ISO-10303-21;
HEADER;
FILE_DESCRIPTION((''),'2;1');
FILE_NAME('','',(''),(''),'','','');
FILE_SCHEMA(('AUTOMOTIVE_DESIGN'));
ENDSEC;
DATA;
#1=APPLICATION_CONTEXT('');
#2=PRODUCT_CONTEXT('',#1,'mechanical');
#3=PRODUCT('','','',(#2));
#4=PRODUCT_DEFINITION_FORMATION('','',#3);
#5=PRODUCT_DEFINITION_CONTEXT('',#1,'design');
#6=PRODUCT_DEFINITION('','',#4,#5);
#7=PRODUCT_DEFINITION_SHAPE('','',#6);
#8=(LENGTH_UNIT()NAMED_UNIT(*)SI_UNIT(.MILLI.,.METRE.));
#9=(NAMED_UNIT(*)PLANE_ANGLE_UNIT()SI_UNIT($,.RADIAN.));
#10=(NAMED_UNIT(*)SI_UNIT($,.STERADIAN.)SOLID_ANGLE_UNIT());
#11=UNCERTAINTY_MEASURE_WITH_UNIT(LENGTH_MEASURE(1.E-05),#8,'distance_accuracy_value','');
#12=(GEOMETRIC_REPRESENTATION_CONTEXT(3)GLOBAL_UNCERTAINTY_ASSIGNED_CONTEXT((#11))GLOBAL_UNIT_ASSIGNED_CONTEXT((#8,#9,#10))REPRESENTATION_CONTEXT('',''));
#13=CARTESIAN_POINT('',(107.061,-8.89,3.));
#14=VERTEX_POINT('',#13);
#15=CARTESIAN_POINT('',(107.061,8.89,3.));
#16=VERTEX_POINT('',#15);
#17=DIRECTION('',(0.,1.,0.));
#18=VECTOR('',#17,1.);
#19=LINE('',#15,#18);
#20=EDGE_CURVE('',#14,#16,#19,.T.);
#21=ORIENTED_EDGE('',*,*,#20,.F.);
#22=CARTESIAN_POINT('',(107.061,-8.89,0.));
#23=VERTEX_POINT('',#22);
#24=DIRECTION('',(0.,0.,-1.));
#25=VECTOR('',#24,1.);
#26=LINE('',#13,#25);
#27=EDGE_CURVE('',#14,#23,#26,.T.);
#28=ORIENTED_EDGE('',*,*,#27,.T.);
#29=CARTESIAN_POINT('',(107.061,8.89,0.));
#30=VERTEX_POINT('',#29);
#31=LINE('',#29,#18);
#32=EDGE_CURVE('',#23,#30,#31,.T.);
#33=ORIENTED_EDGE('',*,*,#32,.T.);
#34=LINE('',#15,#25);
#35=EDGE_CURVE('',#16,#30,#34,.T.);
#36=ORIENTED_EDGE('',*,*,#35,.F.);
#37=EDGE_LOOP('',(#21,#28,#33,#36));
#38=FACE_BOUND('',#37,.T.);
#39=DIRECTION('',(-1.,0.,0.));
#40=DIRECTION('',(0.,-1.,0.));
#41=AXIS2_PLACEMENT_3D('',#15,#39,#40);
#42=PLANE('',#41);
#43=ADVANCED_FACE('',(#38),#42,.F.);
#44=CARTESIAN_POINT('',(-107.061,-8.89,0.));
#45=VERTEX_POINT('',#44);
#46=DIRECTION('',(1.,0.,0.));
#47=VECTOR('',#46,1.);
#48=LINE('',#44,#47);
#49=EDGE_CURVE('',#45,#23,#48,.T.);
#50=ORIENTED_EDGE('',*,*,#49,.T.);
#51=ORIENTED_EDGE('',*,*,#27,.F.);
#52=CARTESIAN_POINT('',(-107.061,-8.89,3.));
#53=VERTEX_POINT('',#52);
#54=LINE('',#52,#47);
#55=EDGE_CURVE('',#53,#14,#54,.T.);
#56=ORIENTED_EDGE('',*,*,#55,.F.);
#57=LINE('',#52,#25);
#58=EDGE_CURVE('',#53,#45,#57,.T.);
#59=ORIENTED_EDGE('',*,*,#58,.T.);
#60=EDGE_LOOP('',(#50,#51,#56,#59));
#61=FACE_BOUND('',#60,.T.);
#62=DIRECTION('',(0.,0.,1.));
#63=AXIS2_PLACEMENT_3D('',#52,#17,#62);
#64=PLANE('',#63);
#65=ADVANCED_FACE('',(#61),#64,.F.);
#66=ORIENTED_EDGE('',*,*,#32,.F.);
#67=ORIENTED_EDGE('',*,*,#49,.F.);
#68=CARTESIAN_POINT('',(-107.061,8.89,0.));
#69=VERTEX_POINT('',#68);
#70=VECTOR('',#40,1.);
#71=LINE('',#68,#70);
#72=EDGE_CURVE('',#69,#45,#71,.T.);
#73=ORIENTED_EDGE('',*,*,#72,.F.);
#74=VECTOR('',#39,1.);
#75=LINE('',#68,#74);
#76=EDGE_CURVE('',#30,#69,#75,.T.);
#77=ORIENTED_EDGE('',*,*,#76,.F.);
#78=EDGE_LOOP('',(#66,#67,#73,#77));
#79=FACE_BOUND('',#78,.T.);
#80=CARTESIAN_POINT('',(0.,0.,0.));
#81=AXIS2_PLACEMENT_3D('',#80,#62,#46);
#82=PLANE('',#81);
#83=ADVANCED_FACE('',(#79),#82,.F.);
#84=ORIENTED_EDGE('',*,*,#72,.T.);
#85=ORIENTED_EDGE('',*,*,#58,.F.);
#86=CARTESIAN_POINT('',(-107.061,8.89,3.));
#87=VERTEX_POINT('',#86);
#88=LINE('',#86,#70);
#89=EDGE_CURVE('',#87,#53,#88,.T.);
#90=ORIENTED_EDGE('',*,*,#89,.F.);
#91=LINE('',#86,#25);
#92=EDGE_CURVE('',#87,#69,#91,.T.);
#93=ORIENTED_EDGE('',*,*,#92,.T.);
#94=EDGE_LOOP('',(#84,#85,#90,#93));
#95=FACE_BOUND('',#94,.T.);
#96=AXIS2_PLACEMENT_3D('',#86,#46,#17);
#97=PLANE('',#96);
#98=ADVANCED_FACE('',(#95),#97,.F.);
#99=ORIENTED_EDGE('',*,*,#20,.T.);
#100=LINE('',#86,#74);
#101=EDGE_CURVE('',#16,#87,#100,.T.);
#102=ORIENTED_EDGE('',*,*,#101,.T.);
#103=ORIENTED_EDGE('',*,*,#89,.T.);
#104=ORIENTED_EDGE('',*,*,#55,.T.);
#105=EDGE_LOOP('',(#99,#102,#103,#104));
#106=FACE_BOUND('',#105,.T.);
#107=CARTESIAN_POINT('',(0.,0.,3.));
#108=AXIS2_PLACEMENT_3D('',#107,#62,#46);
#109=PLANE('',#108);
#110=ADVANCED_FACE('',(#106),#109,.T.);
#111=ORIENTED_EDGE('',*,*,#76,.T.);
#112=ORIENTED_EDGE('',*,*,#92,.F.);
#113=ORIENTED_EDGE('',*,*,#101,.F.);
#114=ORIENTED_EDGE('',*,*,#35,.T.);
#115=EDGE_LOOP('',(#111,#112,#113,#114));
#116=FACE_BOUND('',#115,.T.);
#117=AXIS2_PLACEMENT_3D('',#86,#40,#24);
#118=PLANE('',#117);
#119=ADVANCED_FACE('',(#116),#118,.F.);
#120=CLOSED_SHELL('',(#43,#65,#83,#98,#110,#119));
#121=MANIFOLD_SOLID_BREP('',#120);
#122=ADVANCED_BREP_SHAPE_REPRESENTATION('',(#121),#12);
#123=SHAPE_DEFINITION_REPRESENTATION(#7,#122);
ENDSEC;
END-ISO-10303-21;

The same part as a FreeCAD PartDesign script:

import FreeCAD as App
import Part
import Sketcher
from FreeCAD import Vector
Q = App.Units.Quantity


def add_polygon(sketch, points):
    """Adds a closed chain of lines whose ends are joined by coincident constraints."""
    first, n = sketch.GeometryCount, len(points)
    for a, b in zip(points, points[1:] + points[:1]):
        sketch.addGeometry(Part.LineSegment(App.Vector(*a, 0), App.Vector(*b, 0)), False)
    for i in range(n):
        sketch.addConstraint(Sketcher.Constraint("Coincident", first + i, 2, first + (i + 1) % n, 1))

doc = App.newDocument("Part")
body = doc.addObject("PartDesign::Body", "Body")

# Sketch on XY plane
sketch1 = doc.addObject("Sketcher::SketchObject", "Sketch")
body.addObject(sketch1)
sketch1.AttachmentSupport = (doc.XY_Plane, [""])
sketch1.MapMode = "FlatFace"
add_polygon(sketch1, [(-107, 9), (-107, -9), (107, -9), (107, 9)])  # lines 0-3
sketch1.addConstraint(Sketcher.Constraint("Vertical", 0))
sketch1.addConstraint(Sketcher.Constraint("Horizontal", 1))
sketch1.addConstraint(Sketcher.Constraint("Vertical", 2))
sketch1.addConstraint(Sketcher.Constraint("Horizontal", 3))
sketch1.addConstraint(Sketcher.Constraint("Symmetric", 0, 2, 2, 2, -1, 1))
sketch1.addConstraint(Sketcher.Constraint("DistanceY", 0, 2, 0, 1, Q("0.7 in")))
sketch1.addConstraint(Sketcher.Constraint("DistanceX", 1, 1, 1, 2, Q("8.43 in")))
pad1 = doc.addObject("PartDesign::Pad", "Pad")
body.addObject(pad1)
pad1.Profile = sketch1
pad1.Length = 3

doc.recompute()
